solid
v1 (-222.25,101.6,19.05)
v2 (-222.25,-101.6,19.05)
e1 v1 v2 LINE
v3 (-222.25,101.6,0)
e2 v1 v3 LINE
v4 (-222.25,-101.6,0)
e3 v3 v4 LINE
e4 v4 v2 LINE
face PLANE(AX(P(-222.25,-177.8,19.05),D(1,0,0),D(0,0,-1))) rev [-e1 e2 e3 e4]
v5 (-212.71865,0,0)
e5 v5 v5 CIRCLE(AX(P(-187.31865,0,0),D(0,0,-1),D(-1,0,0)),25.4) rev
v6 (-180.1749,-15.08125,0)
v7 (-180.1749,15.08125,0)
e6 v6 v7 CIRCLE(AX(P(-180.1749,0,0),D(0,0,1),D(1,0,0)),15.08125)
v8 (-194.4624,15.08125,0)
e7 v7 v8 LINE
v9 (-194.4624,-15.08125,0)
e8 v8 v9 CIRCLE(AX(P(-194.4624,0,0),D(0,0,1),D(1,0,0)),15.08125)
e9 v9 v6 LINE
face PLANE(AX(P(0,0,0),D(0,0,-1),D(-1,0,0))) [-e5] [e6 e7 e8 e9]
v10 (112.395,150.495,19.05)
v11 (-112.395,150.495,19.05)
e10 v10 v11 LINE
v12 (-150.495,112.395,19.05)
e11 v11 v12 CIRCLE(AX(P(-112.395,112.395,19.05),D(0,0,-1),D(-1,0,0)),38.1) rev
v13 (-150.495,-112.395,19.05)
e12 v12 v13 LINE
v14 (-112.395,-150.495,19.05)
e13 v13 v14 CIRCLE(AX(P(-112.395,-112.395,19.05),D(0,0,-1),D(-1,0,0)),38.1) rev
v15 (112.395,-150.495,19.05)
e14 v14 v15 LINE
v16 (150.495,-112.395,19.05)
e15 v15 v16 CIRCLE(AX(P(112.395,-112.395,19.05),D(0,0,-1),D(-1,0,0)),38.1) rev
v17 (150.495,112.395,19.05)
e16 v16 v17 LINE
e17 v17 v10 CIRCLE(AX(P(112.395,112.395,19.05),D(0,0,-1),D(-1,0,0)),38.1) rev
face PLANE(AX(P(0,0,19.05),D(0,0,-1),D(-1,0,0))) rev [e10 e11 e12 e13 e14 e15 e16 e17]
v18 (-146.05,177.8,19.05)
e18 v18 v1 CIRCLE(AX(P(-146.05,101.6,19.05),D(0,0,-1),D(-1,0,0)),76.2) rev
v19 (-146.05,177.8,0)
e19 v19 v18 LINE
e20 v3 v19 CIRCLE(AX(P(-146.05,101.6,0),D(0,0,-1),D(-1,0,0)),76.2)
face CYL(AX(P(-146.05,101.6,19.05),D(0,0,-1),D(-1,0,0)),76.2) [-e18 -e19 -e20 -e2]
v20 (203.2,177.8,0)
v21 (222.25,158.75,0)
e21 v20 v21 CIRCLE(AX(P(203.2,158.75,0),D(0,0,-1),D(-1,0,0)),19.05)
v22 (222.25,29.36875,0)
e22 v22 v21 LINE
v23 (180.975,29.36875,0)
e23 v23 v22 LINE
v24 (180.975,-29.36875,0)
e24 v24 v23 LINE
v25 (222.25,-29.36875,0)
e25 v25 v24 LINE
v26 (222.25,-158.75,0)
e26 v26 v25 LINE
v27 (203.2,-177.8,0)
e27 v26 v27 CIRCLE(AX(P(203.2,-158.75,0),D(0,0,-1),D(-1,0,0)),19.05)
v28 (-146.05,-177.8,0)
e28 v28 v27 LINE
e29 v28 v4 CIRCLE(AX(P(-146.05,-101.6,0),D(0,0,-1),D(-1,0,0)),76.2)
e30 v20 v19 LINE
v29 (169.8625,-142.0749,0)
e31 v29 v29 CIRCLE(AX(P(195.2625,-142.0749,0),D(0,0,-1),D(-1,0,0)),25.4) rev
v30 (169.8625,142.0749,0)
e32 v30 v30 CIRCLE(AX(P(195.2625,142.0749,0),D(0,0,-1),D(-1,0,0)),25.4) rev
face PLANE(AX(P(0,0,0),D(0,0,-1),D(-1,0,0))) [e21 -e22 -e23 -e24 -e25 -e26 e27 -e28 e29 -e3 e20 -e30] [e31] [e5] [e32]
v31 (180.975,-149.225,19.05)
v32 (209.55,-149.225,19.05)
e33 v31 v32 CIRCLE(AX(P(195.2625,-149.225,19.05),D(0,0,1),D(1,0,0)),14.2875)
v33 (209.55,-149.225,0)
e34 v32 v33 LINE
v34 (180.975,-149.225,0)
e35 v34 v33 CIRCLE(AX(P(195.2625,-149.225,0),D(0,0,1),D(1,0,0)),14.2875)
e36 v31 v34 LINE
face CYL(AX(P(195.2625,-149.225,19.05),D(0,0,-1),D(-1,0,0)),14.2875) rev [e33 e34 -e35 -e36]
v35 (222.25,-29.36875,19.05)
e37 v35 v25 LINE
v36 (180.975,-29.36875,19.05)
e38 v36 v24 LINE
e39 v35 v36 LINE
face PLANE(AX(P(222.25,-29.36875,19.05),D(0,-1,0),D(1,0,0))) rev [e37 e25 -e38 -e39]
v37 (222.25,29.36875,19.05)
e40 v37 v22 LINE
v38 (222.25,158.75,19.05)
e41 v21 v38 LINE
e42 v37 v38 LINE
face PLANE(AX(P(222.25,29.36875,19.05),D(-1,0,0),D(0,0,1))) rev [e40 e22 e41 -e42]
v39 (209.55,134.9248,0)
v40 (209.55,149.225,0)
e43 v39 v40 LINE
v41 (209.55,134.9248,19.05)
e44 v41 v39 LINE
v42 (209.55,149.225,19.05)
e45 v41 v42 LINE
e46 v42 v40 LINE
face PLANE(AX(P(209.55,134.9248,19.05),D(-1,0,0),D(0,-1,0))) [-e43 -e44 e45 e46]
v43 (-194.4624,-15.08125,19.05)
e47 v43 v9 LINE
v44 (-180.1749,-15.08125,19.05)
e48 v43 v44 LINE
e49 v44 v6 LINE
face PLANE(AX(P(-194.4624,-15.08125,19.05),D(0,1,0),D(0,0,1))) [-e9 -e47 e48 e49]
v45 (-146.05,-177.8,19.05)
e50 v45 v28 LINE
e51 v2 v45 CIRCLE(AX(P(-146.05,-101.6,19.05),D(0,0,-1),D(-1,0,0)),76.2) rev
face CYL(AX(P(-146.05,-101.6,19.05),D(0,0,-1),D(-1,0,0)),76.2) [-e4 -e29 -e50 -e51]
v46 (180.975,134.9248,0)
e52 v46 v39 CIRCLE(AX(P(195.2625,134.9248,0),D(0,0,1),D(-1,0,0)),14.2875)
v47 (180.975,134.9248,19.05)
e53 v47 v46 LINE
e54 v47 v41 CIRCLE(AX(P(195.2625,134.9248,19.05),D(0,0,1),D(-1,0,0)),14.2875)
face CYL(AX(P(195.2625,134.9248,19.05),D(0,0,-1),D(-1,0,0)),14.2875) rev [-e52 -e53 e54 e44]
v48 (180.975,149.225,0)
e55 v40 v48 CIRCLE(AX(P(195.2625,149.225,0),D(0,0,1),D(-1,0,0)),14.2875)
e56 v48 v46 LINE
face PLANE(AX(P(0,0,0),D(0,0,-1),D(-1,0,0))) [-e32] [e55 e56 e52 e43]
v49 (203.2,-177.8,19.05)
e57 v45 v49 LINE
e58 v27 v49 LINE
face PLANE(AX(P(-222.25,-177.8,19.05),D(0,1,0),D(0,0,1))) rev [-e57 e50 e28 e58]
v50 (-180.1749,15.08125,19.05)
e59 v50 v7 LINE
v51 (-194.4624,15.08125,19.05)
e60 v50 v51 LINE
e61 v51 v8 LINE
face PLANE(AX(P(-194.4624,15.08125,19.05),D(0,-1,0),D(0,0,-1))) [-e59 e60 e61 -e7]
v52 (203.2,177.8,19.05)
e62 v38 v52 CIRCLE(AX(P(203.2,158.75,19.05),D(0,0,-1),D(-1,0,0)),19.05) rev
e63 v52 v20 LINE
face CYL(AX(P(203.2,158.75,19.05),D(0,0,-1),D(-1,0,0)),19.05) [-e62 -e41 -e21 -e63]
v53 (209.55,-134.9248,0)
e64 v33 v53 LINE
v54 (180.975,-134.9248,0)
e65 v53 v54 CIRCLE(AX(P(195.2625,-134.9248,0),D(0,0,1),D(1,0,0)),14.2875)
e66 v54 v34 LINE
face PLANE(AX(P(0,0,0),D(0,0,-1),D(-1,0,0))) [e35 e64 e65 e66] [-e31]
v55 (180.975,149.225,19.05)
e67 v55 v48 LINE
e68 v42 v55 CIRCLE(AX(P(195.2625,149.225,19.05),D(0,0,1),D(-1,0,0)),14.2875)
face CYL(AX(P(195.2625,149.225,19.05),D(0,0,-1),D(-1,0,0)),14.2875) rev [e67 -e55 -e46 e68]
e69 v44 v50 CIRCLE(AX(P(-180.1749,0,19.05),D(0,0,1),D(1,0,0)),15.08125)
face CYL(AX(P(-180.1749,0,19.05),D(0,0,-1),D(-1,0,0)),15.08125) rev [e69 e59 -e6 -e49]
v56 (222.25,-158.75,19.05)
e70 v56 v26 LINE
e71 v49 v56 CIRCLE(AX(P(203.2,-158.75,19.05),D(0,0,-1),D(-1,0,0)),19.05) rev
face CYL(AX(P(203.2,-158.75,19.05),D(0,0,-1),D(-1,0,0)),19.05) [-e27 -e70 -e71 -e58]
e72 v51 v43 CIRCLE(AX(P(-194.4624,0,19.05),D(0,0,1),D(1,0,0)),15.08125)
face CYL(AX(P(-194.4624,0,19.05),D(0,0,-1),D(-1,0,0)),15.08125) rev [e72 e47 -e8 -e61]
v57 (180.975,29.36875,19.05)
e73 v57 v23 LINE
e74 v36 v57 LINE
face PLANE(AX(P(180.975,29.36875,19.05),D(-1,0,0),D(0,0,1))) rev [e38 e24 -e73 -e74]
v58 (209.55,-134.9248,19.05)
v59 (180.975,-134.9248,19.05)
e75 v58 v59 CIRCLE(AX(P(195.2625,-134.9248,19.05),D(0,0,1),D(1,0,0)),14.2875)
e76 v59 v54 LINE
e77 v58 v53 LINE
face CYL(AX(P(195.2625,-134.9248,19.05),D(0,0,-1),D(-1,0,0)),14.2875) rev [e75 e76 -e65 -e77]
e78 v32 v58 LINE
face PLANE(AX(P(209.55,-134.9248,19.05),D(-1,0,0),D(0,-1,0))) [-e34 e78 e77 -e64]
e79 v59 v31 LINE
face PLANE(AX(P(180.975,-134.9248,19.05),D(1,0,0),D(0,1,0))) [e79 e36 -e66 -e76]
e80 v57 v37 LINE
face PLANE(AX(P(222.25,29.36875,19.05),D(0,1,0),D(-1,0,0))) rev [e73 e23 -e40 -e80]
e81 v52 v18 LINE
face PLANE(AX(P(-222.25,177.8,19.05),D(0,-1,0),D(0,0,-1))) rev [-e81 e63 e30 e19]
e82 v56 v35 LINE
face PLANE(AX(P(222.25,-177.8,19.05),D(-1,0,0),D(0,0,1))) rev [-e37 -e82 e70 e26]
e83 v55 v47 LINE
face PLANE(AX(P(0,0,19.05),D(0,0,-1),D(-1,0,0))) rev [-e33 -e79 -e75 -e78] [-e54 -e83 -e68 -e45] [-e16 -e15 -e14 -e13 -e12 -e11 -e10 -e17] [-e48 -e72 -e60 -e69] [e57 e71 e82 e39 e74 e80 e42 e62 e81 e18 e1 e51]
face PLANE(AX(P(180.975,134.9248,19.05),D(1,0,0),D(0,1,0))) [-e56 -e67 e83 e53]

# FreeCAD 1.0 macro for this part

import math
import FreeCAD as App
import Part
import Sketcher
Q = App.Units.Quantity


def edges_at(feature, points):
    """Names of the edges that pass closest to the given points."""
    edges = feature.Shape.Edges
    near = lambda p: min(range(len(edges)), key=lambda i: edges[i].distToShape(Part.Vertex(*p))[0])
    return sorted({f"Edge{near(p) + 1}" for p in points})


def add_polygon(sketch, points):
    """Adds a closed chain of lines whose ends are joined by coincident constraints."""
    first, n = sketch.GeometryCount, len(points)
    for a, b in zip(points, points[1:] + points[:1]):
        sketch.addGeometry(Part.LineSegment(App.Vector(*a, 0), App.Vector(*b, 0)), False)
    for i in range(n):
        sketch.addConstraint(Sketcher.Constraint("Coincident", first + i, 2, first + (i + 1) % n, 1))

doc = App.newDocument("Part")
body = doc.addObject("PartDesign::Body", "Body")

sketch1 = doc.addObject("Sketcher::SketchObject", "Sketch")
body.addObject(sketch1)
sketch1.AttachmentSupport = (doc.XY_Plane, [""])
sketch1.MapMode = "FlatFace"
add_polygon(sketch1, [(-222, -178), (222, -178), (222, -29), (181, -29), (181, 29), (222, 29), (222, 178), (-222, 178)])
sketch1.addGeometry(Part.ArcOfCircle(Part.Circle(App.Vector(195, -135, 0), App.Vector(0, 0, 1), 14), math.radians(0), math.radians(180)), False)
sketch1.addGeometry(Part.LineSegment(App.Vector(210, -135, 0), App.Vector(210, -149, 0)), False)
sketch1.addGeometry(Part.ArcOfCircle(Part.Circle(App.Vector(195, -149, 0), App.Vector(0, 0, 1), 14), math.radians(180), math.radians(360)), False)
sketch1.addGeometry(Part.LineSegment(App.Vector(181, -149, 0), App.Vector(181, -135, 0)), False)
sketch1.addGeometry(Part.ArcOfCircle(Part.Circle(App.Vector(-194, 0, 0), App.Vector(0, 0, 1), 15), math.radians(90), math.radians(270)), False)
sketch1.addGeometry(Part.LineSegment(App.Vector(-194, 15, 0), App.Vector(-180, 15, 0)), False)
sketch1.addGeometry(Part.ArcOfCircle(Part.Circle(App.Vector(-180, 0, 0), App.Vector(0, 0, 1), 15), math.radians(-90), math.radians(90)), False)
sketch1.addGeometry(Part.LineSegment(App.Vector(-180, -15, 0), App.Vector(-194, -15, 0)), False)
sketch1.addGeometry(Part.LineSegment(App.Vector(210, 149, 0), App.Vector(210, 135, 0)), False)
sketch1.addGeometry(Part.ArcOfCircle(Part.Circle(App.Vector(195, 135, 0), App.Vector(0, 0, 1), 14), math.radians(180), math.radians(360)), False)
sketch1.addGeometry(Part.LineSegment(App.Vector(181, 135, 0), App.Vector(181, 149, 0)), False)
sketch1.addGeometry(Part.ArcOfCircle(Part.Circle(App.Vector(195, 149, 0), App.Vector(0, 0, 1), 14), math.radians(0), math.radians(180)), False)
sketch1.addConstraint([
    Sketcher.Constraint("Tangent", 8, 1, 9, 1),
    Sketcher.Constraint("Tangent", 9, 2, 10, 2),
    Sketcher.Constraint("Tangent", 10, 1, 11, 1),
    Sketcher.Constraint("Tangent", 11, 2, 8, 2),
    Sketcher.Constraint("Tangent", 12, 1, 13, 1),
    Sketcher.Constraint("Tangent", 13, 2, 14, 2),
    Sketcher.Constraint("Tangent", 14, 1, 15, 1),
    Sketcher.Constraint("Tangent", 15, 2, 12, 2),
    Sketcher.Constraint("Tangent", 16, 2, 17, 2),
    Sketcher.Constraint("Tangent", 17, 1, 18, 1),
    Sketcher.Constraint("Tangent", 18, 2, 19, 2),
    Sketcher.Constraint("Tangent", 19, 1, 16, 1),
    Sketcher.Constraint("Horizontal", 0),
    Sketcher.Constraint("Vertical", 1),
    Sketcher.Constraint("Horizontal", 2),
    Sketcher.Constraint("Vertical", 3),
    Sketcher.Constraint("Horizontal", 4),
    Sketcher.Constraint("Vertical", 5),
    Sketcher.Constraint("Horizontal", 6),
    Sketcher.Constraint("Vertical", 7),
    Sketcher.Constraint("Vertical", 9),
    Sketcher.Constraint("Vertical", 11),
    Sketcher.Constraint("Horizontal", 13),
    Sketcher.Constraint("Horizontal", 15),
    Sketcher.Constraint("Vertical", 16),
    Sketcher.Constraint("Vertical", 18),
    Sketcher.Constraint("Equal", 10, 17),
    Sketcher.Constraint("Symmetric", 0, 2, 6, 2, -1, 1),
    Sketcher.Constraint("Symmetric", 8, 3, 17, 3, -1),
    Sketcher.Constraint("Symmetric", 1, 2, 4, 2, -1),
    Sketcher.Constraint("PointOnObject", 12, 3, -1),
    Sketcher.Constraint("Vertical", 3, 2, 10, 1),
    Sketcher.Constraint("Equal", 11, 16),
    Sketcher.Constraint("DistanceY", 7, 2, 7, 1, Q("14 in")),
    Sketcher.Constraint("DistanceX", 0, 1, 0, 2, Q("17.5 in")),
    Sketcher.Constraint("Radius", 8, Q("0.5625 in")),
    Sketcher.Constraint("Radius", 12, Q("0.59375 in")),
    Sketcher.Constraint("DistanceX", 8, 1, 0, 2, Q("0.5 in")),
    Sketcher.Constraint("DistanceX", 13, 1, 13, 2, Q("0.5625 in")),
    Sketcher.Constraint("DistanceY", 1, 1, 1, 2, Q("5.84375 in")),
    Sketcher.Constraint("DistanceY", 9, 2, 9, 1, Q("0.563 in")),
    Sketcher.Constraint("DistanceY", 10, 3, 19, 3, Q("11.75 in")),
    Sketcher.Constraint("DistanceX", 12, 3, -1, 1, Q("7.656 in")),
])
pad1 = doc.addObject("PartDesign::Pad", "Pad")
body.addObject(pad1)
pad1.Profile = sketch1
pad1.Length = Q("0.75 in")
doc.recompute()

fillet = doc.addObject("PartDesign::Fillet", "Fillet")
body.addObject(fillet)
fillet.Base = (pad1, edges_at(pad1, [(-222.25, -177.8, 9.525), (-222.25, 177.8, 9.525)]))
fillet.Radius = Q("3 in")
doc.recompute()

fillet2 = doc.addObject("PartDesign::Fillet", "Fillet001")
body.addObject(fillet2)
fillet2.Base = (fillet, edges_at(fillet, [(222.25, -177.8, 9.525), (222.25, 177.8, 9.525)]))
fillet2.Radius = Q("0.75 in")

doc.recompute()
